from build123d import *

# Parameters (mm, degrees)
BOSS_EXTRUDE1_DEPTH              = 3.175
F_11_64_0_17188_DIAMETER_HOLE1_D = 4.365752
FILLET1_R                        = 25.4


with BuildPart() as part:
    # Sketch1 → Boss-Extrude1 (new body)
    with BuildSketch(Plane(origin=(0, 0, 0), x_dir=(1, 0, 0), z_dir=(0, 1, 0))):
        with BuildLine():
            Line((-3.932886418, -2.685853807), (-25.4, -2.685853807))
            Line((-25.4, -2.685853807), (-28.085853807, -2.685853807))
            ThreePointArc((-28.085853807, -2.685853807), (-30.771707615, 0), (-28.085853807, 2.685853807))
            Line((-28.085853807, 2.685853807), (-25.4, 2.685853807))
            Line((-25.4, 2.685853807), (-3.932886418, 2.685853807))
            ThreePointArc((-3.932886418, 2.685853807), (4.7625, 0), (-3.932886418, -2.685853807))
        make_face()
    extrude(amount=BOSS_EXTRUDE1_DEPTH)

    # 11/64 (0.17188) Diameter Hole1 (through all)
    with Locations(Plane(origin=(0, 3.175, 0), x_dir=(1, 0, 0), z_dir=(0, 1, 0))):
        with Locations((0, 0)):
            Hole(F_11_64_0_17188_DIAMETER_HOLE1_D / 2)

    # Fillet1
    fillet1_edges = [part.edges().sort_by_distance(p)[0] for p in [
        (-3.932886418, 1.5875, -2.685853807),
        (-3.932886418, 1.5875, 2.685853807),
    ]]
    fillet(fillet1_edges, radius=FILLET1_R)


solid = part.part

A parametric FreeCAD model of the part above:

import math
import FreeCAD as App
import Part
import Sketcher

V = App.Vector
Q = App.Units.Quantity


def edges_at(feature, points):
    """Names of the edges that pass closest to the given points."""
    edges = feature.Shape.Edges
    near = lambda p: min(range(len(edges)), key=lambda i: edges[i].distToShape(Part.Vertex(*p))[0])
    return sorted({f"Edge{near(p) + 1}" for p in points})

doc = App.newDocument("Part")
body = doc.addObject("PartDesign::Body", "Body")

# Sketch on XZ plane
sketch1 = doc.addObject("Sketcher::SketchObject", "Sketch")
body.addObject(sketch1)
sketch1.AttachmentSupport = (doc.XZ_Plane, [""])
sketch1.MapMode = "FlatFace"
sketch1.addGeometry([
    Part.LineSegment(V(-28.1, 2.7, 0), V(-3.9, 2.7, 0)),
    Part.ArcOfCircle(Part.Circle(V(0, 0, 0), V(0, 0, 1), 4.8), math.radians(-146), math.radians(146)),
    Part.LineSegment(V(-3.9, -2.7, 0), V(-28.1, -2.7, 0)),
    Part.ArcOfCircle(Part.Circle(V(-28.1, 0, 0), V(0, 0, 1), 2.7), math.radians(90), math.radians(270)),
], False)
sketch1.addConstraint([
    Sketcher.Constraint("Coincident", 0, 2, 1, 2),
    Sketcher.Constraint("Coincident", 1, 1, 2, 1),
    Sketcher.Constraint("Tangent", 2, 2, 3, 2),
    Sketcher.Constraint("Tangent", 3, 1, 0, 1),
    Sketcher.Constraint("Horizontal", 0),
    Sketcher.Constraint("Horizontal", 2),
    Sketcher.Constraint("Coincident", 1, 3, -1, 1),
    Sketcher.Constraint("PointOnObject", 3, 3, -1),
    Sketcher.Constraint("Radius", 1, Q("0.1875 in")),
    Sketcher.Constraint("Radius", 3, Q("2.685854 mm")),
    Sketcher.Constraint("DistanceX", 0, 1, 0, 2, Q("24.152967 mm")),
])
pad1 = doc.addObject("PartDesign::Pad", "Pad")
body.addObject(pad1)
pad1.Profile = sketch1
pad1.Length = Q("0.125 in")
pad1.Reversed = True

# Sketch on XZ plane
sketch2 = doc.addObject("Sketcher::SketchObject", "Sketch001")
body.addObject(sketch2)
sketch2.AttachmentSupport = (doc.XZ_Plane, [""])
sketch2.MapMode = "FlatFace"
sketch2.AttachmentOffset = App.Placement(V(0, 0, -0.125 * 25.4), App.Rotation())
sketch2.addGeometry(Part.Circle(V(0, 0, 0), V(0, 0, 1), 2.2), False)
sketch2.addConstraint([
    Sketcher.Constraint("Coincident", 0, 3, -1, 1),
    Sketcher.Constraint("Diameter", 0, Q("4.365752 mm")),
])
doc.recompute()
hole = doc.addObject("PartDesign::Hole", "Hole")
body.addObject(hole)
hole.Profile = sketch2
hole.ThreadType = "None"
hole.Diameter = 4.365752
hole.DepthType = "ThroughAll"
hole.Reversed = True
doc.recompute()

fillet = doc.addObject("PartDesign::Fillet", "Fillet")
body.addObject(fillet)
fillet.Base = (hole, edges_at(hole, [(-3.933, 1.587, -2.686), (-3.933, 1.587, 2.686)]))
fillet.Radius = Q("1 in")

doc.recompute()
